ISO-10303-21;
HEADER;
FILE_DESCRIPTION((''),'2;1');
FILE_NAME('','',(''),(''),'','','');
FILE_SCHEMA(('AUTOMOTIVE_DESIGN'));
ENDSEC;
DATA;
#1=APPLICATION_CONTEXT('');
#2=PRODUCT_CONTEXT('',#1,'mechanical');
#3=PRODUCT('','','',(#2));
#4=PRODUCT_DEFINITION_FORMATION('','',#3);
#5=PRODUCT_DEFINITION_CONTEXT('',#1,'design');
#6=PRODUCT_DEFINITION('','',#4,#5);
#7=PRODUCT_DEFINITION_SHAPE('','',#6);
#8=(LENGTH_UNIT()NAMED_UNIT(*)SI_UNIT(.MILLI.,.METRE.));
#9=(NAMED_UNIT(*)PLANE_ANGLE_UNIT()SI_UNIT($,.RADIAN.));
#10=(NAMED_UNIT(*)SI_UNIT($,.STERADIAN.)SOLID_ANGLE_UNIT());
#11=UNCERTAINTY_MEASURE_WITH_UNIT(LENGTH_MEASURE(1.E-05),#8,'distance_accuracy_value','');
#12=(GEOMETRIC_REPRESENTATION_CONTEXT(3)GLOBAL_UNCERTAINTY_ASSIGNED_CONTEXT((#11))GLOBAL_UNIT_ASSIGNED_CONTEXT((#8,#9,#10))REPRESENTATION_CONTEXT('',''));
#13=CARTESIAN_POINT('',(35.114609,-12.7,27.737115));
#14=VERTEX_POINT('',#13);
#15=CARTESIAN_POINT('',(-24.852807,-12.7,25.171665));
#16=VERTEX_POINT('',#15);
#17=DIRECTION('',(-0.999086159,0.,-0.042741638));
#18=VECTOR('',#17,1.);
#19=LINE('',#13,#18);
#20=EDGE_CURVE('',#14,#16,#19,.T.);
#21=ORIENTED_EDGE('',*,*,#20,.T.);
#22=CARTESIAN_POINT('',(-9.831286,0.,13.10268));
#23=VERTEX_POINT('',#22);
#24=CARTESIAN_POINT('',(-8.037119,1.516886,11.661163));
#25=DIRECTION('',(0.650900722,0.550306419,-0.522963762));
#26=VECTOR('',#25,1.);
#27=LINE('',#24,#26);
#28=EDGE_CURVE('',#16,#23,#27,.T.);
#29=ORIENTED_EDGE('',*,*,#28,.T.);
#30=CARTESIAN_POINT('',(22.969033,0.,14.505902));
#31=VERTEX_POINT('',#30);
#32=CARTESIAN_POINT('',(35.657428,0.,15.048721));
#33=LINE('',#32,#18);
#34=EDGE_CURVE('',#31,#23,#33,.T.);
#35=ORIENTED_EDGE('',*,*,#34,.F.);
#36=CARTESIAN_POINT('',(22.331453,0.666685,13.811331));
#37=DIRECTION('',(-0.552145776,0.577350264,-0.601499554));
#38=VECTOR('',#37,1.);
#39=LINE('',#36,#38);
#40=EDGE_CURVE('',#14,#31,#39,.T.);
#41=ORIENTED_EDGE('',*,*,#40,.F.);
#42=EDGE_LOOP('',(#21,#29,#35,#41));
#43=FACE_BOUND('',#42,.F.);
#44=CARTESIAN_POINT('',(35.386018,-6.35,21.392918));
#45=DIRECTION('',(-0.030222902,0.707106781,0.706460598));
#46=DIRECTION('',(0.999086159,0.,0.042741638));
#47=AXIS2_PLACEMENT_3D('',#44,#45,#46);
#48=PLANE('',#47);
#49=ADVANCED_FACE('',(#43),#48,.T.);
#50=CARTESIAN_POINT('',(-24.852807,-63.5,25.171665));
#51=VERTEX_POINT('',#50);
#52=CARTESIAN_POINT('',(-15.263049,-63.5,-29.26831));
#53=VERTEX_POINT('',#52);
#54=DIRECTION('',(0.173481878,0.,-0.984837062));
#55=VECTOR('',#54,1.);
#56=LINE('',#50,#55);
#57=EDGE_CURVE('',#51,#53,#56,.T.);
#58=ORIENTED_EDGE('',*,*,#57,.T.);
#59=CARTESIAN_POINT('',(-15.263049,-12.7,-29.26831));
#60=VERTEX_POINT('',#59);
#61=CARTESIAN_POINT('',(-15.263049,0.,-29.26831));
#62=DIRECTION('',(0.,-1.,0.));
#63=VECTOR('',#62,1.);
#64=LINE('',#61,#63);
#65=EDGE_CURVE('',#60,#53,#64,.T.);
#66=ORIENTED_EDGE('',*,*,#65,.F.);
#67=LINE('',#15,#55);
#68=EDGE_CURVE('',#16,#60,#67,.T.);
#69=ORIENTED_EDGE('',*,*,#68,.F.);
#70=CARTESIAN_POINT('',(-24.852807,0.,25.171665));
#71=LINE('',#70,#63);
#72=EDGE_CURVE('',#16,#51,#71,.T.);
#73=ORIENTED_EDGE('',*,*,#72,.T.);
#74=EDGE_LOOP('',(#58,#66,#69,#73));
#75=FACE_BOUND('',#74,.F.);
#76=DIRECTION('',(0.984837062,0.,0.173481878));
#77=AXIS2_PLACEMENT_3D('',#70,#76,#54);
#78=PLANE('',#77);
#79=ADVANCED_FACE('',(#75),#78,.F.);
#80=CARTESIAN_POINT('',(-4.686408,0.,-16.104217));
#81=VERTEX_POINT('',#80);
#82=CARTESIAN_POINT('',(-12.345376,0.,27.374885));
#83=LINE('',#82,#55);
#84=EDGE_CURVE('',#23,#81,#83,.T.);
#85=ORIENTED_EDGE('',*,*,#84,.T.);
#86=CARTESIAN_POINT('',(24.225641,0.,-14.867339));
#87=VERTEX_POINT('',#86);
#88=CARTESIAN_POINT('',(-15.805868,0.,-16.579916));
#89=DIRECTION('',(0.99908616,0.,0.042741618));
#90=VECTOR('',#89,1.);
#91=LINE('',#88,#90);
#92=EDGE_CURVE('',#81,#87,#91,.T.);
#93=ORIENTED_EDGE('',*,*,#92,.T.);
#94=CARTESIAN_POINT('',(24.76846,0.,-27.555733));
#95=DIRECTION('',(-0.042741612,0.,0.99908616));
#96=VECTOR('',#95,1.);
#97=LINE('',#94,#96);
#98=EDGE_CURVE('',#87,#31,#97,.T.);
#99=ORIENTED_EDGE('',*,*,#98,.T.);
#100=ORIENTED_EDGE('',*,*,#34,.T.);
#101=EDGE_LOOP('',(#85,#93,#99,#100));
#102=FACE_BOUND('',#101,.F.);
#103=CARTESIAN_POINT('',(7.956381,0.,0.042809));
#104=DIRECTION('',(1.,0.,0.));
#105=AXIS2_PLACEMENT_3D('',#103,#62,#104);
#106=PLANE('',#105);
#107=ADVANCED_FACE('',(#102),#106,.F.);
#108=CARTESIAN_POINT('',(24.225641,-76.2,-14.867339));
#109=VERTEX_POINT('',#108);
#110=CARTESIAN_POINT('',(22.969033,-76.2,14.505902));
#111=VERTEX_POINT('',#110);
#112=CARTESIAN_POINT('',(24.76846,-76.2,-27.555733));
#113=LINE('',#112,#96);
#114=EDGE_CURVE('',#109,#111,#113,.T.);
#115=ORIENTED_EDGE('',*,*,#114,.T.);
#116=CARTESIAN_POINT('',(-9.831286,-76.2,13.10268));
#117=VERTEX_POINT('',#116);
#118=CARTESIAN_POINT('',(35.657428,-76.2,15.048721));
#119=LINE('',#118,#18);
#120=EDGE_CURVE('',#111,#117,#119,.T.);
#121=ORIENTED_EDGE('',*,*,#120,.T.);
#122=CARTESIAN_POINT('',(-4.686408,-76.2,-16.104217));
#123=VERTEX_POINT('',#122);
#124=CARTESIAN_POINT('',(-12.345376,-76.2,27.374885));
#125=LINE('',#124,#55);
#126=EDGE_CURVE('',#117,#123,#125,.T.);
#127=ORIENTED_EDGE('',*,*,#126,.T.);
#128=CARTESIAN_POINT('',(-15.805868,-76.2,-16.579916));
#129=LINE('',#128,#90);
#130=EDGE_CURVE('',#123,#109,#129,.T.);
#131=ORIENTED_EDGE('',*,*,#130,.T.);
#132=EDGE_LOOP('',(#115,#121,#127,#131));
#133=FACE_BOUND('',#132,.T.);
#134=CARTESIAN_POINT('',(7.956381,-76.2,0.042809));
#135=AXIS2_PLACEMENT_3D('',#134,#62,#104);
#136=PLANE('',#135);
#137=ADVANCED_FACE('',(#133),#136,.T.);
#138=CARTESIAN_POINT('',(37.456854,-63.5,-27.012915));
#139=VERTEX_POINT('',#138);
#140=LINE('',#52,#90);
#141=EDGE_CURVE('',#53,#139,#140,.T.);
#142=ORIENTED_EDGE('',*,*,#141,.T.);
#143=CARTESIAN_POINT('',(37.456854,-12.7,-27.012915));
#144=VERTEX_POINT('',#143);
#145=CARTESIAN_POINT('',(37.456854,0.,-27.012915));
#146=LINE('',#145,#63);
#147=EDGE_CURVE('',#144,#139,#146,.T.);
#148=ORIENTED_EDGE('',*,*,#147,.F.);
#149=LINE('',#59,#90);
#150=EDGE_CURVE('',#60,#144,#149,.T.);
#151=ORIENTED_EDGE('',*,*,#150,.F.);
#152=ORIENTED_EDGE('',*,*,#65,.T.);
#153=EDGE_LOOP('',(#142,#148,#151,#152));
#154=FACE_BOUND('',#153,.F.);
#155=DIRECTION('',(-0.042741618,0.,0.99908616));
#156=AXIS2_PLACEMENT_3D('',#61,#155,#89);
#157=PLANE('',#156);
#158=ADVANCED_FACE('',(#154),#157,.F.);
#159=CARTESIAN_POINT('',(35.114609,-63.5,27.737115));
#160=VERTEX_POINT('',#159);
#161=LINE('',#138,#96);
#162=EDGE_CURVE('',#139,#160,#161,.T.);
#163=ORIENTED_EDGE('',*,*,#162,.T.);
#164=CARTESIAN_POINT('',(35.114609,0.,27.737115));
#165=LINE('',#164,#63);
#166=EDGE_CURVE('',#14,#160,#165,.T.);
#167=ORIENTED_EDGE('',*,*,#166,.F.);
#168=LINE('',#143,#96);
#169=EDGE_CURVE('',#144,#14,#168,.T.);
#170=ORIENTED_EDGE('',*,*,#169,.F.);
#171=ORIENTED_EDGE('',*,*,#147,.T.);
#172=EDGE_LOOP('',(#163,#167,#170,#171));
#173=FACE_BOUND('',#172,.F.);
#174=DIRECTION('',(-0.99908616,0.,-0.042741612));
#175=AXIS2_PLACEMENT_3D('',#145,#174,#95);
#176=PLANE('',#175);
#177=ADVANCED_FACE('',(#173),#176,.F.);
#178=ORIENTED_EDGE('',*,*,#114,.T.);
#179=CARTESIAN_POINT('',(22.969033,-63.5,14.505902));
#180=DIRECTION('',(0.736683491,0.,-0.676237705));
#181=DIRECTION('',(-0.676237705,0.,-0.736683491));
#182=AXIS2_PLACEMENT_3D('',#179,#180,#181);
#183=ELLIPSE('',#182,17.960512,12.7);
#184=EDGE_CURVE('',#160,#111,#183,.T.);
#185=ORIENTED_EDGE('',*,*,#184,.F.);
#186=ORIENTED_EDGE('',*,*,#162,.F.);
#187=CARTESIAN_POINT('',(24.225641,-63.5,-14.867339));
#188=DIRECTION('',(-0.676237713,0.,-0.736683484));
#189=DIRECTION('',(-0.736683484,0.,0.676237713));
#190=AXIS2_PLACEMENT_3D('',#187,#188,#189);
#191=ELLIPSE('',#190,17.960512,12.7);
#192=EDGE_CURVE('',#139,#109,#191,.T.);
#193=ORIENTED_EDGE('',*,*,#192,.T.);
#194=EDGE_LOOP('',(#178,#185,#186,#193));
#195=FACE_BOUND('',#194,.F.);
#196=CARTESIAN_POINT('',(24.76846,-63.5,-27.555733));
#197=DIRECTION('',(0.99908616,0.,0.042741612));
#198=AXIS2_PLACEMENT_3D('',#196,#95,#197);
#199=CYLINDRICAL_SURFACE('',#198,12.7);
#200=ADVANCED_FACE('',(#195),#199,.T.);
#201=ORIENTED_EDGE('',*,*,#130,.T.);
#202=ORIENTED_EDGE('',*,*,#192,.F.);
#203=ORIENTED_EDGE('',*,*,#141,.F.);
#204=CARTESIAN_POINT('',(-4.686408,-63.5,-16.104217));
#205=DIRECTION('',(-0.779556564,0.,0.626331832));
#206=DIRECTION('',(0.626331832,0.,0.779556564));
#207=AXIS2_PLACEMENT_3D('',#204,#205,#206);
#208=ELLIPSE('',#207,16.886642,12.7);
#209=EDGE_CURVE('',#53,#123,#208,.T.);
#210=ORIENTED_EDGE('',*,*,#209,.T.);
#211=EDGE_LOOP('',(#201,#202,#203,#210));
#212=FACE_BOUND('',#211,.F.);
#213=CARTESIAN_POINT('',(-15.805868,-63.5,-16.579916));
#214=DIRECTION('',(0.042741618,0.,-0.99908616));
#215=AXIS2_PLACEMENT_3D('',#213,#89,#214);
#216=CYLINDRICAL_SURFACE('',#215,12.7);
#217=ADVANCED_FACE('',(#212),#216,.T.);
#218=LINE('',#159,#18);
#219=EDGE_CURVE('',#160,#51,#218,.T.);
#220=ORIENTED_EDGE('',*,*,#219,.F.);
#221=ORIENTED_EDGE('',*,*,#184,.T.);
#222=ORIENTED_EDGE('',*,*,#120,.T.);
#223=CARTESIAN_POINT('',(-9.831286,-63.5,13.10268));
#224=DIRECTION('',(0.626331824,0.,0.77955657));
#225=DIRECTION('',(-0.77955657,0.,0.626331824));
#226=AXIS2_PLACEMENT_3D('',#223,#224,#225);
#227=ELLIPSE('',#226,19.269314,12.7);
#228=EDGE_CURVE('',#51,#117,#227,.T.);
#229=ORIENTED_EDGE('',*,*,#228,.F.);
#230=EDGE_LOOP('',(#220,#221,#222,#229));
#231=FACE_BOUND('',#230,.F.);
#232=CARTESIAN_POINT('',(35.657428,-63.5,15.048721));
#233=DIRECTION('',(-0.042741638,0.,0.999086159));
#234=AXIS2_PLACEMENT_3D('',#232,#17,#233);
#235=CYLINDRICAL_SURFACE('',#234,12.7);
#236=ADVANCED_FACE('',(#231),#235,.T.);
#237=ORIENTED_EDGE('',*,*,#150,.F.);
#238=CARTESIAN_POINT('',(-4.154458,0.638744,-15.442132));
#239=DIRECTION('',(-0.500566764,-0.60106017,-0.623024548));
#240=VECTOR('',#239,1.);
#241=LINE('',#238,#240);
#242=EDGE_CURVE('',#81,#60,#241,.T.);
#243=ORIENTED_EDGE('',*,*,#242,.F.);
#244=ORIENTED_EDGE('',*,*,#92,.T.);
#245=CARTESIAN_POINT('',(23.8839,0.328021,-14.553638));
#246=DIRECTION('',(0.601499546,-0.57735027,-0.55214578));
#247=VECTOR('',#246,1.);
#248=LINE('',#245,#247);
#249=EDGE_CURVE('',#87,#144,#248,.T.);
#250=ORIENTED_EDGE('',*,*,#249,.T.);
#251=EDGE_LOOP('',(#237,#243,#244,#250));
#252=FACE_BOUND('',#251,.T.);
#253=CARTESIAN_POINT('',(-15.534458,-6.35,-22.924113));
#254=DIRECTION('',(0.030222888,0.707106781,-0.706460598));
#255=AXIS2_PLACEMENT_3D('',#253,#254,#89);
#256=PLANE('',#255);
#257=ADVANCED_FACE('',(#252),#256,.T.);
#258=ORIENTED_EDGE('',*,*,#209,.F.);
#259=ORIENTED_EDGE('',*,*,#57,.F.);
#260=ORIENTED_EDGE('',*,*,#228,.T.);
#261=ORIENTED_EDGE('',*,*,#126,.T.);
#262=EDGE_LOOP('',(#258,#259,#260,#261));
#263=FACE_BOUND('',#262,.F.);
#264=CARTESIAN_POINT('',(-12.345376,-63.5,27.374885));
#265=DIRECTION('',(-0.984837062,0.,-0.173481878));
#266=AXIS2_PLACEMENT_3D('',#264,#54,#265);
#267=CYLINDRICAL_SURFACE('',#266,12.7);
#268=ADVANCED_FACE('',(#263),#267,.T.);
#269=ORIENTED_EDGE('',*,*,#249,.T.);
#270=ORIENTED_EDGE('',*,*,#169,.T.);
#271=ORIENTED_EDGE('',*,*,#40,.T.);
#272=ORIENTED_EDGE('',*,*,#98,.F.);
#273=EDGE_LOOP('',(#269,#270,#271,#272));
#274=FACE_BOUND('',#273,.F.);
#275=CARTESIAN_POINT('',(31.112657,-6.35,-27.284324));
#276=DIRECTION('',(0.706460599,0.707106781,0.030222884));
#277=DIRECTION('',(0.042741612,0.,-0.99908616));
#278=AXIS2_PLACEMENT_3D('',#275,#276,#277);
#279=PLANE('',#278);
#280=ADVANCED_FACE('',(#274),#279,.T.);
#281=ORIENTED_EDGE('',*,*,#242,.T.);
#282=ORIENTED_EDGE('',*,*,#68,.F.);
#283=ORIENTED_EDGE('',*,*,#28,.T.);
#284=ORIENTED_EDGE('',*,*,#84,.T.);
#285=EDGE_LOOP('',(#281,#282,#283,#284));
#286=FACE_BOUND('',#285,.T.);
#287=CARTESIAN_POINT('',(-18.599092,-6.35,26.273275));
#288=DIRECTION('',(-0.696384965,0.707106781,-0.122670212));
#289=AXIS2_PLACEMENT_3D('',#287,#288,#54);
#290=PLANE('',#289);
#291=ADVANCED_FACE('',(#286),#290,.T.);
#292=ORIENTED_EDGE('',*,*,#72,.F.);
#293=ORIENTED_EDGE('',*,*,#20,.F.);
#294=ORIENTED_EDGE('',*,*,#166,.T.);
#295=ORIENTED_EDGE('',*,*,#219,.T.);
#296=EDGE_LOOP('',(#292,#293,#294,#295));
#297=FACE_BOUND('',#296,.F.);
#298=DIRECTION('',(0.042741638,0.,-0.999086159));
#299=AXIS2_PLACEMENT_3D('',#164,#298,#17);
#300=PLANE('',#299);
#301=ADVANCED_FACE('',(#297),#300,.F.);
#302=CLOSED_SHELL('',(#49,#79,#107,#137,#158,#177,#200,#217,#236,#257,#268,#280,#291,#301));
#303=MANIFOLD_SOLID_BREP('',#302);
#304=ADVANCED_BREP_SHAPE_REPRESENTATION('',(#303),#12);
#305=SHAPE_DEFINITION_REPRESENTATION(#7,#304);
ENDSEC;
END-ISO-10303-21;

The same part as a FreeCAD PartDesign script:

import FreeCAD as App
import Part
import Sketcher
from FreeCAD import Vector
Q = App.Units.Quantity


def edges_at(feature, points):
    """Names of the edges that pass closest to the given points."""
    edges = feature.Shape.Edges
    near = lambda p: min(range(len(edges)), key=lambda i: edges[i].distToShape(Part.Vertex(*p))[0])
    return sorted({f"Edge{near(p) + 1}" for p in points})


def add_polygon(sketch, points):
    """Adds a closed chain of lines whose ends are joined by coincident constraints."""
    first, n = sketch.GeometryCount, len(points)
    for a, b in zip(points, points[1:] + points[:1]):
        sketch.addGeometry(Part.LineSegment(App.Vector(*a, 0), App.Vector(*b, 0)), False)
    for i in range(n):
        sketch.addConstraint(Sketcher.Constraint("Coincident", first + i, 2, first + (i + 1) % n, 1))

doc = App.newDocument("Part")
body = doc.addObject("PartDesign::Body", "Body")

# Sketch on XZ plane
sketch1 = body.newObject("Sketcher::SketchObject", "Sketch")
sketch1.AttachmentSupport = (doc.getObject("XZ_Plane"), [""])
sketch1.MapMode = "FlatFace"
add_polygon(sketch1, [(35, 28), (-25, 25), (-15, -29), (37, -27)])  # lines 0-3
sketch1.addConstraint([
    Sketcher.Constraint("Parallel", 0, 2),
    Sketcher.Constraint("Perpendicular", 2, 3),
    Sketcher.Constraint("Distance", 3, 54.800109),
    Sketcher.Constraint("DistanceX", 1, 2, -1, 1, 15.263049),
    Sketcher.Constraint("DistanceY", 1, 2, -1, 1, 29.26831),
    Sketcher.Constraint("DistanceX", -1, 1, 3, 2, 35.114609),
    Sketcher.Constraint("DistanceX", 0, 2, 2, 2, 62.309661),
    Sketcher.Constraint("DistanceY", 2, 2, 0, 2, 52.18458),
])
pad1 = body.newObject("PartDesign::Pad", "Pad")
pad1.Profile = sketch1
pad1.Length = Q("3 in")
doc.recompute()

fillet = body.newObject("PartDesign::Fillet", "Fillet")
fillet.Base = (pad1, edges_at(pad1, [
    (5.131, -76.2, 26.454),
    (36.286, -76.2, 0.362),
    (11.097, -76.2, -28.141),
    (-20.058, -76.2, -2.048),
]))
fillet.Radius = Q("0.5 in")
doc.recompute()

chamfer = body.newObject("PartDesign::Chamfer", "Chamfer")
chamfer.Base = (fillet, edges_at(fillet, [
    (11.097, 0, -28.141),
    (5.131, 0, 26.454),
    (36.286, 0, 0.362),
    (-20.058, 0, -2.048),
]))
chamfer.Size = Q("0.5 in")

doc.recompute()
